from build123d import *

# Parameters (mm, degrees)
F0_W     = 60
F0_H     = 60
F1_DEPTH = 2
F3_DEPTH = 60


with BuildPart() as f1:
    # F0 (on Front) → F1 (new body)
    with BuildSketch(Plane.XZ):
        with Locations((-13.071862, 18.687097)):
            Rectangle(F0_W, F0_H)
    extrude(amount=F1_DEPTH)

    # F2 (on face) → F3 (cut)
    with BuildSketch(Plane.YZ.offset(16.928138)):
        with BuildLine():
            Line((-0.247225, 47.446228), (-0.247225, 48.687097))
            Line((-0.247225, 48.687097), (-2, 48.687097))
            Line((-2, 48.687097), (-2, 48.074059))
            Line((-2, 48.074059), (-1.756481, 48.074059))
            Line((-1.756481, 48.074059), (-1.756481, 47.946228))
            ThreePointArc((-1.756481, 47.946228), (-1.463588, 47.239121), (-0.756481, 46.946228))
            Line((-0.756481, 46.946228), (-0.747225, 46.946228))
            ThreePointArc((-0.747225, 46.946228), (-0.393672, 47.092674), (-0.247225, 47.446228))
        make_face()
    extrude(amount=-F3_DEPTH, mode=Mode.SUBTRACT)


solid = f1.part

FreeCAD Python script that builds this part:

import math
import FreeCAD as App
import Part
import Sketcher

V = App.Vector
Q = App.Units.Quantity


def add_polygon(sketch, points):
    """Adds a closed chain of lines whose ends are joined by coincident constraints."""
    first, n = sketch.GeometryCount, len(points)
    for a, b in zip(points, points[1:] + points[:1]):
        sketch.addGeometry(Part.LineSegment(App.Vector(*a, 0), App.Vector(*b, 0)), False)
    for i in range(n):
        sketch.addConstraint(Sketcher.Constraint("Coincident", first + i, 2, first + (i + 1) % n, 1))

doc = App.newDocument("Part")
params = doc.addObject("Spreadsheet::Sheet", "Params")
for row, (alias, value) in enumerate([
    ("sketch1_width", "60 mm"),
    ("pad1_length", "2 mm"),
    ("sketch2_radius", "0.999999 mm"),
    ("sketch2_radius2", "0.5 mm"),
    ("pocket1_length", "60 mm"),
], start=1):
    params.set(f"A{row}", alias)
    params.set(f"B{row}", "=" + value)
    params.setAlias(f"B{row}", alias)

body = doc.addObject("PartDesign::Body", "Body")

# Sketch on XZ plane
sketch1 = body.newObject("Sketcher::SketchObject", "Sketch")
sketch1.AttachmentSupport = (doc.getObject("XZ_Plane"), [""])
sketch1.MapMode = "FlatFace"
add_polygon(sketch1, [(-43, 49), (-43, -11), (17, -11), (17, 49)])  # lines 0-3
sketch1.addConstraint(Sketcher.Constraint("Vertical", 0))
sketch1.addConstraint(Sketcher.Constraint("Horizontal", 1))
sketch1.addConstraint(Sketcher.Constraint("Vertical", 2))
sketch1.addConstraint(Sketcher.Constraint("Horizontal", 3))
sketch1.addConstraint(Sketcher.Constraint("Equal", 3, 0))
sketch1.addConstraint(Sketcher.Constraint("DistanceX", 1, 1, 1, 2, Q("60 mm")))
sketch1.addConstraint(Sketcher.Constraint("DistanceX", -1, 1, 1, 2, Q("16.928138 mm")))
sketch1.addConstraint(Sketcher.Constraint("DistanceY", 0, 2, -1, 1, Q("11.312903 mm")))
sketch1.setExpression("Constraints[9]", "Params.sketch1_width")
pad1 = body.newObject("PartDesign::Pad", "Pad")
pad1.Profile = sketch1
pad1.setExpression("Length", "Params.pad1_length")

# Sketch on YZ plane
sketch2 = body.newObject("Sketcher::SketchObject", "Sketch001")
sketch2.AttachmentSupport = (doc.getObject("YZ_Plane"), [""])
sketch2.MapMode = "FlatFace"
sketch2.AttachmentOffset = App.Placement(V(0, 0, 16.928138), App.Rotation())
sketch2.addGeometry(Part.LineSegment(V(-0.247, 47.446, 0), V(-0.247, 48.687, 0)), False)
sketch2.addGeometry(Part.LineSegment(V(-0.247, 48.687, 0), V(-2, 48.687, 0)), False)
sketch2.addGeometry(Part.LineSegment(V(-2, 48.687, 0), V(-2, 48.074, 0)), False)
sketch2.addGeometry(Part.LineSegment(V(-2, 48.074, 0), V(-1.756, 48.074, 0)), False)
sketch2.addGeometry(Part.LineSegment(V(-1.756, 48.074, 0), V(-1.756, 47.946, 0)), False)
sketch2.addGeometry(Part.ArcOfCircle(Part.Circle(V(-0.756, 47.946, 0), V(0, 0, 1), 1), math.radians(180), math.radians(270)), False)
sketch2.addGeometry(Part.LineSegment(V(-0.756, 46.946, 0), V(-0.747, 46.946, 0)), False)
sketch2.addGeometry(Part.ArcOfCircle(Part.Circle(V(-0.747, 47.446, 0), V(0, 0, 1), 0.5), math.radians(-90), math.radians(0)), False)
sketch2.addConstraint(Sketcher.Constraint("Coincident", 0, 2, 1, 1))
sketch2.addConstraint(Sketcher.Constraint("Coincident", 1, 2, 2, 1))
sketch2.addConstraint(Sketcher.Constraint("Coincident", 2, 2, 3, 1))
sketch2.addConstraint(Sketcher.Constraint("Coincident", 3, 2, 4, 1))
sketch2.addConstraint(Sketcher.Constraint("Tangent", 4, 2, 5, 1))
sketch2.addConstraint(Sketcher.Constraint("Tangent", 5, 2, 6, 1))
sketch2.addConstraint(Sketcher.Constraint("Tangent", 6, 2, 7, 1))
sketch2.addConstraint(Sketcher.Constraint("Tangent", 7, 2, 0, 1))
sketch2.addConstraint(Sketcher.Constraint("Vertical", 0))
sketch2.addConstraint(Sketcher.Constraint("Horizontal", 1))
sketch2.addConstraint(Sketcher.Constraint("Vertical", 2))
sketch2.addConstraint(Sketcher.Constraint("Horizontal", 3))
sketch2.addConstraint(Sketcher.Constraint("Vertical", 4))
sketch2.addConstraint(Sketcher.Constraint("Horizontal", 6))
sketch2.addConstraint(Sketcher.Constraint("Radius", 5, Q("0.999999 mm")))
sketch2.addConstraint(Sketcher.Constraint("Radius", 7, Q("0.5 mm")))
sketch2.addConstraint(Sketcher.Constraint("DistanceX", 1, 2, -1, 1, Q("2 mm")))
sketch2.addConstraint(Sketcher.Constraint("DistanceX", 3, 1, 3, 2, Q("0.243519 mm")))
sketch2.addConstraint(Sketcher.Constraint("DistanceY", 0, 1, 0, 2, Q("1.240869 mm")))
sketch2.addConstraint(Sketcher.Constraint("DistanceY", 2, 2, 2, 1, Q("0.613038 mm")))
sketch2.addConstraint(Sketcher.Constraint("DistanceX", 1, 2, 1, 1, Q("1.752775 mm")))
sketch2.addConstraint(Sketcher.Constraint("DistanceY", -1, 1, 2, 2, Q("48.074059 mm")))
sketch2.setExpression("Constraints[14]", "Params.sketch2_radius")
sketch2.setExpression("Constraints[15]", "Params.sketch2_radius2")
pocket1 = body.newObject("PartDesign::Pocket", "Pocket")
pocket1.Profile = sketch2
pocket1.setExpression("Length", "Params.pocket1_length")

doc.recompute()
